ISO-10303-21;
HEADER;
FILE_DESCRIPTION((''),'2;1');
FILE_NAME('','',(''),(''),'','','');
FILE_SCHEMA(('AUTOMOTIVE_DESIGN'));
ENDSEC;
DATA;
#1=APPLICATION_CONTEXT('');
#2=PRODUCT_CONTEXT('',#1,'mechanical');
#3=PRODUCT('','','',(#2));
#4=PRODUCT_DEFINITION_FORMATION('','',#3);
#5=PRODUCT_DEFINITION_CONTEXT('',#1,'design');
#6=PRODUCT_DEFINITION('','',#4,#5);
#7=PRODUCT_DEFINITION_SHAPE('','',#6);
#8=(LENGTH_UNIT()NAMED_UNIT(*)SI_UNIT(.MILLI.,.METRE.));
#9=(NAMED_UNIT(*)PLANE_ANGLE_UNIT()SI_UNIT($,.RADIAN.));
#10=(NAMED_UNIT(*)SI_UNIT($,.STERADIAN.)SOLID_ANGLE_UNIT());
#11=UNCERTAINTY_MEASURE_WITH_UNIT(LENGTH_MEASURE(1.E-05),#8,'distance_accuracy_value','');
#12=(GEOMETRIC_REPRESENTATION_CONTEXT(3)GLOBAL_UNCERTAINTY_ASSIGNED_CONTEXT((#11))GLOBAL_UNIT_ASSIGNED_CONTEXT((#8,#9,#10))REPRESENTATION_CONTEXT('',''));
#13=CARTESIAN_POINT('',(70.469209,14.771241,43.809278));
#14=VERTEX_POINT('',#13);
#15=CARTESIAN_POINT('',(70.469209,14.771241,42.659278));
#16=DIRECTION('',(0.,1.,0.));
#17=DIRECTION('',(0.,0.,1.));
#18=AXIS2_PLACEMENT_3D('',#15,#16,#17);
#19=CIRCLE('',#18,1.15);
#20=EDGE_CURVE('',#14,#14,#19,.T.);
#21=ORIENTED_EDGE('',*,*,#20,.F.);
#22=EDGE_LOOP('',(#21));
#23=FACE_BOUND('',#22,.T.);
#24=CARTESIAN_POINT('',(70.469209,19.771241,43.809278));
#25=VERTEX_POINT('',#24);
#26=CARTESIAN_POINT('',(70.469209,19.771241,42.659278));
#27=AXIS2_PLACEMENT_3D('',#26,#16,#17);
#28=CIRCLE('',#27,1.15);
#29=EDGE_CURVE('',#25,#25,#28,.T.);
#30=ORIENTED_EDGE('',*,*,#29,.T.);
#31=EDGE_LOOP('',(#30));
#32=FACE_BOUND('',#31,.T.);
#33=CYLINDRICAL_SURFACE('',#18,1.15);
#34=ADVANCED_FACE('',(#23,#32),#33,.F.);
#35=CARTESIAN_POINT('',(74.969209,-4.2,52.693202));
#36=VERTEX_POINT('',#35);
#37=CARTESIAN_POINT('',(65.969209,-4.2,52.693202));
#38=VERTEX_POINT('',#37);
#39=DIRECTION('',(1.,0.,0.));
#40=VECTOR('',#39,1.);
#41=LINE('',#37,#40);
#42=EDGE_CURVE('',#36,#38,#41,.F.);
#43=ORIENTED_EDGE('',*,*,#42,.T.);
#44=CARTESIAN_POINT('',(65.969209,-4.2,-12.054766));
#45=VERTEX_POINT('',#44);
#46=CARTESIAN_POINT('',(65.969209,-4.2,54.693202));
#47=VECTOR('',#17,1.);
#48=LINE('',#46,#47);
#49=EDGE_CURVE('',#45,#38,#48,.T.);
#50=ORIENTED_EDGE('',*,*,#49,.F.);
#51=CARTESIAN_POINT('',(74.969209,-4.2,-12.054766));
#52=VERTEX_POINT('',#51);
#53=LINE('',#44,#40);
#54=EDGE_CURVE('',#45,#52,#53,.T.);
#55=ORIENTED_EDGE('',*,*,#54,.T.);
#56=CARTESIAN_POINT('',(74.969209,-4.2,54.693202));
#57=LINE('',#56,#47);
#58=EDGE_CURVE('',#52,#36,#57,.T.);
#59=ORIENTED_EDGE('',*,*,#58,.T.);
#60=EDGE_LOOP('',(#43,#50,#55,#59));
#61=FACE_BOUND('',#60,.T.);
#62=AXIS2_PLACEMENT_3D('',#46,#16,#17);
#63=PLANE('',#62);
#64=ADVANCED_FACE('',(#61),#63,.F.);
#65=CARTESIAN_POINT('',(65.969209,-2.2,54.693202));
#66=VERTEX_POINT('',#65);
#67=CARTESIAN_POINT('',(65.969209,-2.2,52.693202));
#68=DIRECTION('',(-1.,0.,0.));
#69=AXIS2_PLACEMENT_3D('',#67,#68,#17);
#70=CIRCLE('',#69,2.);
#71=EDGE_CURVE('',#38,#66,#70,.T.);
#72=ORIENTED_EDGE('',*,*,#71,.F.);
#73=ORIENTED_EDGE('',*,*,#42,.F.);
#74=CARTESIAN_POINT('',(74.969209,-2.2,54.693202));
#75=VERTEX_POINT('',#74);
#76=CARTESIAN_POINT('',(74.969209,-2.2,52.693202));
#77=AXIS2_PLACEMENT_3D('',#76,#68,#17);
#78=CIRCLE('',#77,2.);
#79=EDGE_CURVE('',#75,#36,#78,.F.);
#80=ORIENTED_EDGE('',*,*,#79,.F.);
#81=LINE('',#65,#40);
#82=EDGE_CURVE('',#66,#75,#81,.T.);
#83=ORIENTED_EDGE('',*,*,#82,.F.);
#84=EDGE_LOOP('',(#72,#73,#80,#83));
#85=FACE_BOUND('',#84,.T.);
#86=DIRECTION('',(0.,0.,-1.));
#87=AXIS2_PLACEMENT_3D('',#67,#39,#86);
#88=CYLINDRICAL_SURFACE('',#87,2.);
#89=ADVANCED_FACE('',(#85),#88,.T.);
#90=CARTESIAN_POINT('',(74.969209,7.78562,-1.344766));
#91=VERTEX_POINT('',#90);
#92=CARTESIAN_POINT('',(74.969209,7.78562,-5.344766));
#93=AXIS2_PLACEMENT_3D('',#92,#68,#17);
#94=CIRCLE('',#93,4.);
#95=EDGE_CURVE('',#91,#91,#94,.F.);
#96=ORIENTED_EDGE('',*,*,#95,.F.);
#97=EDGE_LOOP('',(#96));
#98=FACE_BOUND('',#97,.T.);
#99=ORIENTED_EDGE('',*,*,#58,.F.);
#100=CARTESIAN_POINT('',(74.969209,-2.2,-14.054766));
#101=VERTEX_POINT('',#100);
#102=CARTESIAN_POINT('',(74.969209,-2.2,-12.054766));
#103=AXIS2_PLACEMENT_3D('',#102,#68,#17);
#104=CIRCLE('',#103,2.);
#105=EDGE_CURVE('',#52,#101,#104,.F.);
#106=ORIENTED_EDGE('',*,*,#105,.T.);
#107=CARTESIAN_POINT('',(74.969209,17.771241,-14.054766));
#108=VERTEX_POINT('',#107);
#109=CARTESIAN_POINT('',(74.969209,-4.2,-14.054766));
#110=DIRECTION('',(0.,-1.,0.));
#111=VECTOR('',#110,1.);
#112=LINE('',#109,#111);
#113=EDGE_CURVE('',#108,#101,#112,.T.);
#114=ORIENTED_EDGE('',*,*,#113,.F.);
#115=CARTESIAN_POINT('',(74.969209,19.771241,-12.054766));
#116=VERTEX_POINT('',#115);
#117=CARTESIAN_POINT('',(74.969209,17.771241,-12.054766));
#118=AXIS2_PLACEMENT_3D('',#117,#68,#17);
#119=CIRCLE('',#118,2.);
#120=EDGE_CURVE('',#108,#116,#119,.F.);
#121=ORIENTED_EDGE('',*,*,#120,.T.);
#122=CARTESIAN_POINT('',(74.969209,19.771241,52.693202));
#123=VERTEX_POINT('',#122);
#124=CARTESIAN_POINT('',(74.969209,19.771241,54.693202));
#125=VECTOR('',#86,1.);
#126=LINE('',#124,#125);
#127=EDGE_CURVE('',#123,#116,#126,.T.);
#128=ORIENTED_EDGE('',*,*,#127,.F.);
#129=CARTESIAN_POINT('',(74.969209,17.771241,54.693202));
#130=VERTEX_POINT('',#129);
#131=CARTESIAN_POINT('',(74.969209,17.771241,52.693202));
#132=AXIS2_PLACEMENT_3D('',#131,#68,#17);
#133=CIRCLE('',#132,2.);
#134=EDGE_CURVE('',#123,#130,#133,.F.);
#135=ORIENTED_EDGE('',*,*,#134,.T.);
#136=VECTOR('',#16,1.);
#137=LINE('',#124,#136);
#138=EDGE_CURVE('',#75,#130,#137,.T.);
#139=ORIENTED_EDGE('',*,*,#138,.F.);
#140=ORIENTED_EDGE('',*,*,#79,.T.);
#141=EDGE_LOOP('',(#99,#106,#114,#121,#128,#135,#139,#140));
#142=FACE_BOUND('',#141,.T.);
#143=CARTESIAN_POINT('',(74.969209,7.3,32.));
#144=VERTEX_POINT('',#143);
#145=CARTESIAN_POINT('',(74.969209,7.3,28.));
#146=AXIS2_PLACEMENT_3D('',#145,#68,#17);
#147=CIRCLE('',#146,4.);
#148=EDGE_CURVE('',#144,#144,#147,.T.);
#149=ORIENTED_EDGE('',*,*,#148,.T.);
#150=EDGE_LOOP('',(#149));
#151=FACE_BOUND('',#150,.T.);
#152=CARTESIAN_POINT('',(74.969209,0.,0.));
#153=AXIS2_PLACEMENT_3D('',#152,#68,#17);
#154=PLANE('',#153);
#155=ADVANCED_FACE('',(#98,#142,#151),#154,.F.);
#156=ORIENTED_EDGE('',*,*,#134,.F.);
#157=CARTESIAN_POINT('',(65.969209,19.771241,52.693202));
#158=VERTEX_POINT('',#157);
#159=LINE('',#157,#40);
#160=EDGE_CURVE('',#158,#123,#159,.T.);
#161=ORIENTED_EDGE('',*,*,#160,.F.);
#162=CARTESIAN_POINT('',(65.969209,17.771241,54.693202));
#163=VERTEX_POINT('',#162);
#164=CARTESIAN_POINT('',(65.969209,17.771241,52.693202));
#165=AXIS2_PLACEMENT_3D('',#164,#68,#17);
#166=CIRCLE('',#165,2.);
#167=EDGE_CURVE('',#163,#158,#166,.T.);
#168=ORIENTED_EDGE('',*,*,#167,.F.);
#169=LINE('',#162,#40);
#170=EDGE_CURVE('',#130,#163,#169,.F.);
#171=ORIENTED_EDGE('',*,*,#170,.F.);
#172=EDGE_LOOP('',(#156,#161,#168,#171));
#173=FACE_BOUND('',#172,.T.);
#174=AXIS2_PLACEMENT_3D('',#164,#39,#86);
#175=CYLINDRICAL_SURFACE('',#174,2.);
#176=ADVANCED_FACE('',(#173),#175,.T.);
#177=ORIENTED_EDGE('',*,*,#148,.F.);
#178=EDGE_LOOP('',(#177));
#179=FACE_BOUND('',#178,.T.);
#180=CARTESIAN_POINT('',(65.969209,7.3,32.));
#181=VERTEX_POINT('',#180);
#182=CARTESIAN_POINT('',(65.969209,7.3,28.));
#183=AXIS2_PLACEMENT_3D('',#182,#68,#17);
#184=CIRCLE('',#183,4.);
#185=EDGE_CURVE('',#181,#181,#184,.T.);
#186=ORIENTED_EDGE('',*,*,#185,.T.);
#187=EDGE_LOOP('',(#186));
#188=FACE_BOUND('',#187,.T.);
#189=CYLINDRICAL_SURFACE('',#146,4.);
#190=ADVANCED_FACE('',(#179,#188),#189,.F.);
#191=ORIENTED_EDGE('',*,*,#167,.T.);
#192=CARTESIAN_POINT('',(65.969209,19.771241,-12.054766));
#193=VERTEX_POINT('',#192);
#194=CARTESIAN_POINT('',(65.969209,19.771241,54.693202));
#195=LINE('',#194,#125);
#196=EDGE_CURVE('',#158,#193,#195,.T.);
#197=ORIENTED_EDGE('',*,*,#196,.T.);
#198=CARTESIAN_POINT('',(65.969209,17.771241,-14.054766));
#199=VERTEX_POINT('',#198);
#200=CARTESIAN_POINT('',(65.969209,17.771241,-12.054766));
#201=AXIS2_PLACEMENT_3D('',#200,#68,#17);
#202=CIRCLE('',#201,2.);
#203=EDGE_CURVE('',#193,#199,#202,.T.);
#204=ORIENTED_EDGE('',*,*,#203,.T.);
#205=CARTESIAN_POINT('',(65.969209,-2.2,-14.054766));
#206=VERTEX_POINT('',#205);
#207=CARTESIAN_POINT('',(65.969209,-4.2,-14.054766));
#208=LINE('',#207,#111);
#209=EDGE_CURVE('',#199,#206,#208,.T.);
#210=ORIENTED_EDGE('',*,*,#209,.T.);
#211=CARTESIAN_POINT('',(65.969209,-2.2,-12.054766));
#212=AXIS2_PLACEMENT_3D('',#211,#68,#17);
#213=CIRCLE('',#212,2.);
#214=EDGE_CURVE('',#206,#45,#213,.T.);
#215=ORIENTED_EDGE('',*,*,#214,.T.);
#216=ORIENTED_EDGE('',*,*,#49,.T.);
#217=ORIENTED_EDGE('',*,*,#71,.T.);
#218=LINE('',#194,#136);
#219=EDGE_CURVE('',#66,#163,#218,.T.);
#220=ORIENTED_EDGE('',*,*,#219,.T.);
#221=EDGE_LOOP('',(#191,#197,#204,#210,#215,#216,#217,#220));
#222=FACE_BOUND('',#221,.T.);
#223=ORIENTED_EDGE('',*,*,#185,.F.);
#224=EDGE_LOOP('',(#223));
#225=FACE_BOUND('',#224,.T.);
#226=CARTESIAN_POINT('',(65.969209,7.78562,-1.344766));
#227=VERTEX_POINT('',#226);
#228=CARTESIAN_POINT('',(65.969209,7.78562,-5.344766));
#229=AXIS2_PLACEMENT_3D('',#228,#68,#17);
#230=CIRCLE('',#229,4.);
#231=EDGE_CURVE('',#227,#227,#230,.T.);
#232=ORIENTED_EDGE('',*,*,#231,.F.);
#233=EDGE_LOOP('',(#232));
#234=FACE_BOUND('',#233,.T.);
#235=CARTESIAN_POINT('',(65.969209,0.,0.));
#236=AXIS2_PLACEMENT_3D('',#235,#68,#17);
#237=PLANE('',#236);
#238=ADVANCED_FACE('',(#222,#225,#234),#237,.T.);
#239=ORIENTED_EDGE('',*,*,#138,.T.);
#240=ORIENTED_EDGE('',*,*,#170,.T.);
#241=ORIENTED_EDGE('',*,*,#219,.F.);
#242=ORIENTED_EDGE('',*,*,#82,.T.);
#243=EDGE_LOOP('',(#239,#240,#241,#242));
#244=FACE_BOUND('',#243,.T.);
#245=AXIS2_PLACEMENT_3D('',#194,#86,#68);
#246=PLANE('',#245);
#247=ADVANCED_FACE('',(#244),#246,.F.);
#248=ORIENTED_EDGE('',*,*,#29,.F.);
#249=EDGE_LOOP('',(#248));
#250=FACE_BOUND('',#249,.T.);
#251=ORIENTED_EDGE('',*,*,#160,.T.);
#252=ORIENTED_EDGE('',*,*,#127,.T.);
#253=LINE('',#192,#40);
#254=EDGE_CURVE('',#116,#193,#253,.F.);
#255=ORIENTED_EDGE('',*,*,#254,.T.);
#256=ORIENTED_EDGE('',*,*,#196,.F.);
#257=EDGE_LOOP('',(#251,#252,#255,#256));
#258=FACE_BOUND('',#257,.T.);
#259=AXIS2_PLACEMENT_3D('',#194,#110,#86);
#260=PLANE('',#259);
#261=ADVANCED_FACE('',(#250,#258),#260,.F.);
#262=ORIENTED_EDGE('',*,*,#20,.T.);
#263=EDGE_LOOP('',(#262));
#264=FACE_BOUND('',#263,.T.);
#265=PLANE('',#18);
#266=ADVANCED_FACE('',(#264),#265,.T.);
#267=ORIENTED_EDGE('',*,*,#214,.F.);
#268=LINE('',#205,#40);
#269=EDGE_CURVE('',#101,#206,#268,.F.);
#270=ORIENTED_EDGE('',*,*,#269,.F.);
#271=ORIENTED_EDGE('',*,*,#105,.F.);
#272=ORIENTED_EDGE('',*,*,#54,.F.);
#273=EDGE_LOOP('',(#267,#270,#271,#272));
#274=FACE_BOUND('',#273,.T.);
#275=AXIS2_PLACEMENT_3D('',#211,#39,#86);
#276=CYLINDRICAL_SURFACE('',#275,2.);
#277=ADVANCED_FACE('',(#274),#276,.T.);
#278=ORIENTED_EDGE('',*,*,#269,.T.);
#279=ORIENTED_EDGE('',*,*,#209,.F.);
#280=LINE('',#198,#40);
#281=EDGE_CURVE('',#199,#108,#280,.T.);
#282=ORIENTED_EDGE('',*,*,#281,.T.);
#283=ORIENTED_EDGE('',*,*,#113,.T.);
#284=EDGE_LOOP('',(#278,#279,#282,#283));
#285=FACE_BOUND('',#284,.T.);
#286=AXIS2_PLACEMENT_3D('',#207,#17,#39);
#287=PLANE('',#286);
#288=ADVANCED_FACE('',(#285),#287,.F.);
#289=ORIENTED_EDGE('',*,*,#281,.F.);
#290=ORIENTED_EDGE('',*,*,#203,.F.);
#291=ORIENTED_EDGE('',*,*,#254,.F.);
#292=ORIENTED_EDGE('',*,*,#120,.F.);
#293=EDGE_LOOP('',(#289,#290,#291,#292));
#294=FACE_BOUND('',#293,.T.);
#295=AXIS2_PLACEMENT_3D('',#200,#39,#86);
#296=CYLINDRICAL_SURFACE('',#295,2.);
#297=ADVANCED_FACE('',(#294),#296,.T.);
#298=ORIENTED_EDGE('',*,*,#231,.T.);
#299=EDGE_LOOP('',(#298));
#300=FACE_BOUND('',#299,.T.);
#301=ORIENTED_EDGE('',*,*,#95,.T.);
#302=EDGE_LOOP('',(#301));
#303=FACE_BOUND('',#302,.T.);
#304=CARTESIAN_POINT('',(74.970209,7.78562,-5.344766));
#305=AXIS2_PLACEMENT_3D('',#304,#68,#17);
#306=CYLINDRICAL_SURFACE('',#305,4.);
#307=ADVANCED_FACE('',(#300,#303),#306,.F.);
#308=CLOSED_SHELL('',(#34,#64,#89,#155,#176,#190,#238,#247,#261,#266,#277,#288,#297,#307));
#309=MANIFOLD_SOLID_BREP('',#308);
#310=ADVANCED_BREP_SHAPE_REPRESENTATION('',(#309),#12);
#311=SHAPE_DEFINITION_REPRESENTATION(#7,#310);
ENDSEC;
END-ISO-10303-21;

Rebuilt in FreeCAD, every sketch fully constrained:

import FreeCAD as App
import Part
import Sketcher
from FreeCAD import Vector
Q = App.Units.Quantity


def edges_at(feature, points):
    """Names of the edges that pass closest to the given points."""
    edges = feature.Shape.Edges
    near = lambda p: min(range(len(edges)), key=lambda i: edges[i].distToShape(Part.Vertex(*p))[0])
    return sorted({f"Edge{near(p) + 1}" for p in points})

doc = App.newDocument("Part")
body = doc.addObject("PartDesign::Body", "Body")

# Sketch on YZ plane
sketch1 = body.newObject("Sketcher::SketchObject", "Sketch")
sketch1.AttachmentSupport = (doc.getObject("YZ_Plane"), [""])
sketch1.MapMode = "FlatFace"
sketch1.AttachmentOffset = App.Placement(Vector(0, 0, 74.969209), App.Rotation())
sketch1.addGeometry([
    Part.LineSegment(Vector(20, -14, 0), Vector(-4, -14, 0)),
    Part.LineSegment(Vector(-4, -14, 0), Vector(-4, 55, 0)),
    Part.LineSegment(Vector(-4, 55, 0), Vector(20, 55, 0)),
    Part.LineSegment(Vector(20, 55, 0), Vector(20, -14, 0)),
], False)
sketch1.addConstraint([
    Sketcher.Constraint("Coincident", 0, 2, 1, 1),
    Sketcher.Constraint("Coincident", 1, 2, 2, 1),
    Sketcher.Constraint("Coincident", 2, 2, 3, 1),
    Sketcher.Constraint("Coincident", 3, 2, 0, 1),
    Sketcher.Constraint("Horizontal", 0),
    Sketcher.Constraint("Vertical", 1),
    Sketcher.Constraint("Horizontal", 2),
    Sketcher.Constraint("Vertical", 3),
    Sketcher.Constraint("DistanceX", 0, 2, -1, 1, Q("4.2 mm")),
    Sketcher.Constraint("DistanceX", 0, 2, 0, 1, Q("23.971241 mm")),
    Sketcher.Constraint("DistanceY", 1, 1, 1, 2, Q("68.747968 mm")),
    Sketcher.Constraint("DistanceY", 0, 2, -1, 1, Q("14.054766 mm")),
])
pad1 = body.newObject("PartDesign::Pad", "Pad")
pad1.Profile = sketch1
pad1.Length = 9
pad1.Reversed = True

# Sketch on YZ plane
sketch2 = body.newObject("Sketcher::SketchObject", "Sketch001")
sketch2.AttachmentSupport = (doc.getObject("YZ_Plane"), [""])
sketch2.MapMode = "FlatFace"
sketch2.AttachmentOffset = App.Placement(Vector(0, 0, 65.969209), App.Rotation())
sketch2.addGeometry(Part.Circle(Vector(7.3, 28, 0), Vector(0, 0, 1), 4), False)
sketch2.addConstraint([
    Sketcher.Constraint("Diameter", 0, Q("8 mm")),
    Sketcher.Constraint("DistanceY", -1, 1, 0, 3, Q("28 mm")),
    Sketcher.Constraint("DistanceX", -1, 1, 0, 3, Q("7.3 mm")),
])
pocket1 = body.newObject("PartDesign::Pocket", "Pocket")
pocket1.Profile = sketch2
pocket1.Length = 9
pocket1.Reversed = True
doc.recompute()

fillet = body.newObject("PartDesign::Fillet", "Fillet")
fillet.Base = (pocket1, edges_at(pocket1, [
    (70.469, 19.771, -14.055),
    (70.469, 19.771, 54.693),
    (70.469, -4.2, 54.693),
    (70.469, -4.2, -14.055),
]))
fillet.Radius = 2

# Sketch on XZ plane
sketch3 = body.newObject("Sketcher::SketchObject", "Sketch002")
sketch3.AttachmentSupport = (doc.getObject("XZ_Plane"), [""])
sketch3.MapMode = "FlatFace"
sketch3.AttachmentOffset = App.Placement(Vector(0, 0, -19.771241), App.Rotation())
sketch3.addGeometry(Part.Circle(Vector(70.5, 42.7, 0), Vector(0, 0, 1), 1.1), False)
sketch3.addConstraint([
    Sketcher.Constraint("Diameter", 0, Q("2.3 mm")),
    Sketcher.Constraint("DistanceX", -1, 1, 0, 3, Q("70.469209 mm")),
    Sketcher.Constraint("DistanceY", -1, 1, 0, 3, Q("42.659278 mm")),
])
pocket2 = body.newObject("PartDesign::Pocket", "Pocket001")
pocket2.Profile = sketch3
pocket2.Length = 5
pocket2.Reversed = True

# Sketch on YZ plane
sketch4 = body.newObject("Sketcher::SketchObject", "Sketch003")
sketch4.AttachmentSupport = (doc.getObject("YZ_Plane"), [""])
sketch4.MapMode = "FlatFace"
sketch4.AttachmentOffset = App.Placement(Vector(0, 0, 65.969209), App.Rotation())
sketch4.addGeometry(Part.Circle(Vector(7.8, -5.3, 0), Vector(0, 0, 1), 4), False)
sketch4.addConstraint([
    Sketcher.Constraint("Diameter", 0, Q("8 mm")),
    Sketcher.Constraint("DistanceX", -1, 1, 0, 3, Q("7.78562 mm")),
    Sketcher.Constraint("DistanceY", 0, 3, -1, 1, Q("5.344766 mm")),
])
pocket3 = body.newObject("PartDesign::Pocket", "Pocket002")
pocket3.Profile = sketch4
pocket3.Type = "UpToFirst"
pocket3.Reversed = True

doc.recompute()
